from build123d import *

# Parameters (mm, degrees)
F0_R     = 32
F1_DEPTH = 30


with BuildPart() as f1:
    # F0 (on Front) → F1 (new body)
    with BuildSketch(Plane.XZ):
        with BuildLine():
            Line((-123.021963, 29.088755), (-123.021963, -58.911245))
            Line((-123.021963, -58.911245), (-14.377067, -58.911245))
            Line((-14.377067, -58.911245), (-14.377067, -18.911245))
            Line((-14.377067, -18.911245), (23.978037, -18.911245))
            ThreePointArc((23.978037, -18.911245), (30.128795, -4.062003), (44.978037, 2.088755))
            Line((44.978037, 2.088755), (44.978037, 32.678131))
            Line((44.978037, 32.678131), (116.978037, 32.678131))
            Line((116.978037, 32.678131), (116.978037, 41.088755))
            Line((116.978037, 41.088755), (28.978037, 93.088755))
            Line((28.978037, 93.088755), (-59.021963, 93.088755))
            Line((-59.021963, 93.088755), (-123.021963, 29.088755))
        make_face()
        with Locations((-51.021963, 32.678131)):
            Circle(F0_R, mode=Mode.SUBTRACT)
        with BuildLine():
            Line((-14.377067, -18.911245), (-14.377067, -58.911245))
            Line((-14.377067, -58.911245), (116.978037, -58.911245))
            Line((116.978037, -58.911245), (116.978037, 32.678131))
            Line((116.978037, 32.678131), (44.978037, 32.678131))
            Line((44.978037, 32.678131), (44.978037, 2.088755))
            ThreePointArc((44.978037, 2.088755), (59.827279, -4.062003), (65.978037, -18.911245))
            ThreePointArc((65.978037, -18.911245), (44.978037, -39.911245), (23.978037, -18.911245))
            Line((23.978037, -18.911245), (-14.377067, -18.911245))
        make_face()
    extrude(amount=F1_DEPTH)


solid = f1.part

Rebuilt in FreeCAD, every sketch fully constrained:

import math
import FreeCAD as App
import Part
import Sketcher
from FreeCAD import Vector
Q = App.Units.Quantity


def add_polygon(sketch, points):
    """Adds a closed chain of lines whose ends are joined by coincident constraints."""
    first, n = sketch.GeometryCount, len(points)
    for a, b in zip(points, points[1:] + points[:1]):
        sketch.addGeometry(Part.LineSegment(App.Vector(*a, 0), App.Vector(*b, 0)), False)
    for i in range(n):
        sketch.addConstraint(Sketcher.Constraint("Coincident", first + i, 2, first + (i + 1) % n, 1))

doc = App.newDocument("Part")
body = doc.addObject("PartDesign::Body", "Body")

# Sketch on XZ plane
sketch1 = body.newObject("Sketcher::SketchObject", "Sketch")
sketch1.AttachmentSupport = (doc.getObject("XZ_Plane"), [""])
sketch1.MapMode = "FlatFace"
add_polygon(sketch1, [(-123.021963, 29.088755), (-123.021963, -58.911245), (116.978037, -58.911245), (116.978037, 41.088755), (28.978037, 93.088755), (-59.021963, 93.088755)])  # lines 0-5
sketch1.addGeometry(Part.ArcOfCircle(Part.Circle(Vector(44.978038, -18.911246, 0), Vector(0, 0, 1), 21.000001), math.radians(90.000004), math.radians(179.999996)), False)  # 6
sketch1.addGeometry(Part.ArcOfCircle(Part.Circle(Vector(44.978036, -18.911246, 0), Vector(0, 0, 1), 21.000001), math.radians(0.000004), math.radians(89.999996)), False)  # 7
sketch1.addGeometry(Part.ArcOfCircle(Part.Circle(Vector(44.978037, -18.911245, 0), Vector(0, 0, 1), 21), math.radians(180), math.radians(360)), False)  # 8
sketch1.addGeometry(Part.Circle(Vector(-51.021963, 32.678131, 0), Vector(0, 0, 1), 32), False)  # 9
sketch1.addConstraint([
    Sketcher.Constraint("Tangent", 6, 1, 7, 2),
    Sketcher.Constraint("Tangent", 7, 1, 8, 2),
    Sketcher.Constraint("Tangent", 8, 1, 6, 2),
    Sketcher.Constraint("Vertical", 0),
    Sketcher.Constraint("Horizontal", 1),
    Sketcher.Constraint("Vertical", 2),
    Sketcher.Constraint("Horizontal", 4),
    Sketcher.Constraint("Horizontal", 8, 3, 7, 1),
    Sketcher.Constraint("Horizontal", 7, 1, 8, 1),
    Sketcher.Constraint("Vertical", 8, 3, 6, 1),
    Sketcher.Constraint("Equal", 4, 0),
    Sketcher.Constraint("Diameter", 9, Q("64 mm")),
    Sketcher.Constraint("Radius", 6, Q("21.000001 mm")),
    Sketcher.Constraint("DistanceX", 1, 1, 1, 2, Q("240 mm")),
    Sketcher.Constraint("DistanceX", 4, 2, 4, 1, Q("88 mm")),
    Sketcher.Constraint("DistanceY", 2, 1, 2, 2, Q("100 mm")),
    Sketcher.Constraint("Angle", 5, Q("-135 deg")),
    Sketcher.Constraint("DistanceX", 9, 3, 7, 3, Q("95.999999 mm")),
    Sketcher.Constraint("DistanceX", 0, 2, 9, 3, Q("72 mm")),
    Sketcher.Constraint("DistanceY", 0, 2, 7, 3, Q("39.999999 mm")),
    Sketcher.Constraint("DistanceX", 9, 3, 3, 2, Q("80 mm")),
    Sketcher.Constraint("DistanceX", -1, 1, 6, 3, Q("44.978038 mm")),
    Sketcher.Constraint("DistanceY", -1, 1, 9, 3, Q("32.678131 mm")),
    Sketcher.Constraint("DistanceY", 6, 3, -1, 1, Q("18.911246 mm")),
])
pad1 = body.newObject("PartDesign::Pad", "Pad")
pad1.Profile = sketch1
pad1.Length = 30

doc.recompute()
